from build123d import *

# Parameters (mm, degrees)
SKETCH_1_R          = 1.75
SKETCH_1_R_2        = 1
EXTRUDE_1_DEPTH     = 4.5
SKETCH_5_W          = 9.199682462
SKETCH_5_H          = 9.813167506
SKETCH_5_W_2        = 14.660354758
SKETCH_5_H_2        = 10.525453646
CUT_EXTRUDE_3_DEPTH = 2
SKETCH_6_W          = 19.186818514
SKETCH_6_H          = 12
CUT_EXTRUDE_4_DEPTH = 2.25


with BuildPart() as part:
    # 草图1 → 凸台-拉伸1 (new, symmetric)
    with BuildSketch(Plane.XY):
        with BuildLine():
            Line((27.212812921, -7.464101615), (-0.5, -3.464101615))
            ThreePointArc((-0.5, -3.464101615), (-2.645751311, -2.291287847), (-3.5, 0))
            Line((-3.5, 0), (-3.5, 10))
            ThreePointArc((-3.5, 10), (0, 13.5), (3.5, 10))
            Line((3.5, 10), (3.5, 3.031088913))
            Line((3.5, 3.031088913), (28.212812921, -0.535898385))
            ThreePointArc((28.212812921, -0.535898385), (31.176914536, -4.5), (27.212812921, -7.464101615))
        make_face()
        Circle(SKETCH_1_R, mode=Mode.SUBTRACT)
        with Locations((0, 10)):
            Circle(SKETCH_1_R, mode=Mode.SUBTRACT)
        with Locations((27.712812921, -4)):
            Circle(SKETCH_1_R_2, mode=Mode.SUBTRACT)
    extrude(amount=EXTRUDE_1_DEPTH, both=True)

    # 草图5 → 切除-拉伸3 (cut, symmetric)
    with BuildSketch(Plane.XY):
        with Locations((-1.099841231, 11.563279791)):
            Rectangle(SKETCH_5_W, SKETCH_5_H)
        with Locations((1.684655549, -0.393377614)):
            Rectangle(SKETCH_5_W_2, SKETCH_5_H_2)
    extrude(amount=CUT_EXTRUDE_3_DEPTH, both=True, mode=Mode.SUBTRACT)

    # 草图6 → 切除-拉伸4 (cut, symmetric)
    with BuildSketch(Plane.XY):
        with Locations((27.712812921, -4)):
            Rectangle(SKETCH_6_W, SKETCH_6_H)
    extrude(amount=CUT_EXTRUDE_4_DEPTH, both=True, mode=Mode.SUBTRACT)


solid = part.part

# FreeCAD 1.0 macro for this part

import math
import FreeCAD as App
import Part
import Sketcher


def add_polygon(sketch, points):
    """Adds a closed chain of lines whose ends are joined by coincident constraints."""
    first, n = sketch.GeometryCount, len(points)
    for a, b in zip(points, points[1:] + points[:1]):
        sketch.addGeometry(Part.LineSegment(App.Vector(*a, 0), App.Vector(*b, 0)), False)
    for i in range(n):
        sketch.addConstraint(Sketcher.Constraint("Coincident", first + i, 2, first + (i + 1) % n, 1))

doc = App.newDocument("Part")
body = doc.addObject("PartDesign::Body", "Body")

sketch1 = body.newObject("Sketcher::SketchObject", "Sketch")
sketch1.AttachmentSupport = (doc.getObject("XY_Plane"), [""])
sketch1.MapMode = "FlatFace"
sketch1.addGeometry(Part.LineSegment(App.Vector(-0.5, -3.5, 0), App.Vector(27.2, -7.5, 0)), False)
sketch1.addGeometry(Part.ArcOfCircle(Part.Circle(App.Vector(27.7, -4, 0), App.Vector(0, 0, 1), 3.5), math.radians(-98), math.radians(82)), False)
sketch1.addGeometry(Part.LineSegment(App.Vector(28.2, -0.5, 0), App.Vector(3.5, 3, 0)), False)
sketch1.addGeometry(Part.LineSegment(App.Vector(3.5, 3, 0), App.Vector(3.5, 10, 0)), False)
sketch1.addGeometry(Part.ArcOfCircle(Part.Circle(App.Vector(0, 10, 0), App.Vector(0, 0, 1), 3.5), math.radians(0), math.radians(180)), False)
sketch1.addGeometry(Part.LineSegment(App.Vector(-3.5, 10, 0), App.Vector(-3.5, 0, 0)), False)
sketch1.addGeometry(Part.ArcOfCircle(Part.Circle(App.Vector(0, 0, 0), App.Vector(0, 0, 1), 3.5), math.radians(-180), math.radians(-98)), False)
sketch1.addGeometry(Part.Circle(App.Vector(27.7, -4, 0), App.Vector(0, 0, 1), 1), False)
sketch1.addGeometry(Part.Circle(App.Vector(0, 0, 0), App.Vector(0, 0, 1), 1.8), False)
sketch1.addGeometry(Part.Circle(App.Vector(0, 10, 0), App.Vector(0, 0, 1), 1.8), False)
sketch1.addConstraint(Sketcher.Constraint("Tangent", 0, 2, 1, 1))
sketch1.addConstraint(Sketcher.Constraint("Tangent", 1, 2, 2, 1))
sketch1.addConstraint(Sketcher.Constraint("Coincident", 2, 2, 3, 1))
sketch1.addConstraint(Sketcher.Constraint("Tangent", 3, 2, 4, 1))
sketch1.addConstraint(Sketcher.Constraint("Tangent", 4, 2, 5, 1))
sketch1.addConstraint(Sketcher.Constraint("Tangent", 5, 2, 6, 1))
sketch1.addConstraint(Sketcher.Constraint("Tangent", 6, 2, 0, 1))
sketch1.addConstraint(Sketcher.Constraint("Vertical", 3))
sketch1.addConstraint(Sketcher.Constraint("Vertical", 5))
sketch1.addConstraint(Sketcher.Constraint("Coincident", 6, 3, -1, 1))
sketch1.addConstraint(Sketcher.Constraint("Coincident", 8, 3, -1, 1))
sketch1.addConstraint(Sketcher.Constraint("Coincident", 7, 3, 1, 3))
sketch1.addConstraint(Sketcher.Constraint("Coincident", 9, 3, 4, 3))
sketch1.addConstraint(Sketcher.Constraint("Equal", 1, 4))
sketch1.addConstraint(Sketcher.Constraint("Equal", 4, 6))
sketch1.addConstraint(Sketcher.Constraint("Equal", 8, 9))
sketch1.addConstraint(Sketcher.Constraint("Parallel", 0, 2))
sketch1.addConstraint(Sketcher.Constraint("Diameter", 7, 2.0))
sketch1.addConstraint(Sketcher.Constraint("Diameter", 8, 3.5))
sketch1.addConstraint(Sketcher.Constraint("Radius", 1, 3.5))
sketch1.addConstraint(Sketcher.Constraint("DistanceY", 5, 2, 5, 1, 10.0))
sketch1.addConstraint(Sketcher.Constraint("Distance", 0, 28.0))
sketch1.addConstraint(Sketcher.Constraint("DistanceY", 1, 3, -1, 1, 4.0))
pad1 = body.newObject("PartDesign::Pad", "Pad")
pad1.Profile = sketch1
pad1.Length = 9
pad1.Midplane = True

sketch2 = body.newObject("Sketcher::SketchObject", "Sketch001")
sketch2.AttachmentSupport = (doc.getObject("XY_Plane"), [""])
sketch2.MapMode = "FlatFace"
add_polygon(sketch2, [(-6, 16), (-6, 7), (4, 7), (4, 16)])
add_polygon(sketch2, [(-6, 5), (-6, -6), (9, -6), (9, 5)])
sketch2.addConstraint(Sketcher.Constraint("Vertical", 0))
sketch2.addConstraint(Sketcher.Constraint("Horizontal", 1))
sketch2.addConstraint(Sketcher.Constraint("Vertical", 2))
sketch2.addConstraint(Sketcher.Constraint("Horizontal", 3))
sketch2.addConstraint(Sketcher.Constraint("Vertical", 4))
sketch2.addConstraint(Sketcher.Constraint("Horizontal", 5))
sketch2.addConstraint(Sketcher.Constraint("Vertical", 6))
sketch2.addConstraint(Sketcher.Constraint("Horizontal", 7))
sketch2.addConstraint(Sketcher.Constraint("DistanceX", -1, 1, 1, 2, 3.5))
sketch2.addConstraint(Sketcher.Constraint("DistanceY", 4, 2, 0, 2, 12.3128))
sketch2.addConstraint(Sketcher.Constraint("DistanceX", 1, 1, 1, 2, 9.199682))
sketch2.addConstraint(Sketcher.Constraint("DistanceX", 5, 1, 5, 2, 14.660355))
sketch2.addConstraint(Sketcher.Constraint("DistanceY", 0, 2, 0, 1, 9.813168))
sketch2.addConstraint(Sketcher.Constraint("DistanceY", 4, 2, 4, 1, 10.525454))
sketch2.addConstraint(Sketcher.Constraint("DistanceX", 4, 2, -1, 1, 5.645522))
sketch2.addConstraint(Sketcher.Constraint("DistanceY", -1, 1, 6, 2, 4.869349))
pocket1 = body.newObject("PartDesign::Pocket", "Pocket")
pocket1.Profile = sketch2
pocket1.Length = 4
pocket1.Midplane = True

sketch3 = body.newObject("Sketcher::SketchObject", "Sketch002")
sketch3.AttachmentSupport = (doc.getObject("XY_Plane"), [""])
sketch3.MapMode = "FlatFace"
add_polygon(sketch3, [(18, 2), (18, -10), (37, -10), (37, 2)])
sketch3.addConstraint(Sketcher.Constraint("Vertical", 0))
sketch3.addConstraint(Sketcher.Constraint("Horizontal", 1))
sketch3.addConstraint(Sketcher.Constraint("Vertical", 2))
sketch3.addConstraint(Sketcher.Constraint("Horizontal", 3))
sketch3.addConstraint(Sketcher.Constraint("DistanceY", 0, 2, 0, 1, 12.0))
sketch3.addConstraint(Sketcher.Constraint("DistanceY", 0, 2, -1, 1, 10.0))
sketch3.addConstraint(Sketcher.Constraint("DistanceX", 1, 1, 1, 2, 19.186819))
sketch3.addConstraint(Sketcher.Constraint("DistanceX", -1, 1, 0, 2, 18.119404))
pocket2 = body.newObject("PartDesign::Pocket", "Pocket001")
pocket2.Profile = sketch3
pocket2.Length = 4.5
pocket2.Midplane = True

doc.recompute()
